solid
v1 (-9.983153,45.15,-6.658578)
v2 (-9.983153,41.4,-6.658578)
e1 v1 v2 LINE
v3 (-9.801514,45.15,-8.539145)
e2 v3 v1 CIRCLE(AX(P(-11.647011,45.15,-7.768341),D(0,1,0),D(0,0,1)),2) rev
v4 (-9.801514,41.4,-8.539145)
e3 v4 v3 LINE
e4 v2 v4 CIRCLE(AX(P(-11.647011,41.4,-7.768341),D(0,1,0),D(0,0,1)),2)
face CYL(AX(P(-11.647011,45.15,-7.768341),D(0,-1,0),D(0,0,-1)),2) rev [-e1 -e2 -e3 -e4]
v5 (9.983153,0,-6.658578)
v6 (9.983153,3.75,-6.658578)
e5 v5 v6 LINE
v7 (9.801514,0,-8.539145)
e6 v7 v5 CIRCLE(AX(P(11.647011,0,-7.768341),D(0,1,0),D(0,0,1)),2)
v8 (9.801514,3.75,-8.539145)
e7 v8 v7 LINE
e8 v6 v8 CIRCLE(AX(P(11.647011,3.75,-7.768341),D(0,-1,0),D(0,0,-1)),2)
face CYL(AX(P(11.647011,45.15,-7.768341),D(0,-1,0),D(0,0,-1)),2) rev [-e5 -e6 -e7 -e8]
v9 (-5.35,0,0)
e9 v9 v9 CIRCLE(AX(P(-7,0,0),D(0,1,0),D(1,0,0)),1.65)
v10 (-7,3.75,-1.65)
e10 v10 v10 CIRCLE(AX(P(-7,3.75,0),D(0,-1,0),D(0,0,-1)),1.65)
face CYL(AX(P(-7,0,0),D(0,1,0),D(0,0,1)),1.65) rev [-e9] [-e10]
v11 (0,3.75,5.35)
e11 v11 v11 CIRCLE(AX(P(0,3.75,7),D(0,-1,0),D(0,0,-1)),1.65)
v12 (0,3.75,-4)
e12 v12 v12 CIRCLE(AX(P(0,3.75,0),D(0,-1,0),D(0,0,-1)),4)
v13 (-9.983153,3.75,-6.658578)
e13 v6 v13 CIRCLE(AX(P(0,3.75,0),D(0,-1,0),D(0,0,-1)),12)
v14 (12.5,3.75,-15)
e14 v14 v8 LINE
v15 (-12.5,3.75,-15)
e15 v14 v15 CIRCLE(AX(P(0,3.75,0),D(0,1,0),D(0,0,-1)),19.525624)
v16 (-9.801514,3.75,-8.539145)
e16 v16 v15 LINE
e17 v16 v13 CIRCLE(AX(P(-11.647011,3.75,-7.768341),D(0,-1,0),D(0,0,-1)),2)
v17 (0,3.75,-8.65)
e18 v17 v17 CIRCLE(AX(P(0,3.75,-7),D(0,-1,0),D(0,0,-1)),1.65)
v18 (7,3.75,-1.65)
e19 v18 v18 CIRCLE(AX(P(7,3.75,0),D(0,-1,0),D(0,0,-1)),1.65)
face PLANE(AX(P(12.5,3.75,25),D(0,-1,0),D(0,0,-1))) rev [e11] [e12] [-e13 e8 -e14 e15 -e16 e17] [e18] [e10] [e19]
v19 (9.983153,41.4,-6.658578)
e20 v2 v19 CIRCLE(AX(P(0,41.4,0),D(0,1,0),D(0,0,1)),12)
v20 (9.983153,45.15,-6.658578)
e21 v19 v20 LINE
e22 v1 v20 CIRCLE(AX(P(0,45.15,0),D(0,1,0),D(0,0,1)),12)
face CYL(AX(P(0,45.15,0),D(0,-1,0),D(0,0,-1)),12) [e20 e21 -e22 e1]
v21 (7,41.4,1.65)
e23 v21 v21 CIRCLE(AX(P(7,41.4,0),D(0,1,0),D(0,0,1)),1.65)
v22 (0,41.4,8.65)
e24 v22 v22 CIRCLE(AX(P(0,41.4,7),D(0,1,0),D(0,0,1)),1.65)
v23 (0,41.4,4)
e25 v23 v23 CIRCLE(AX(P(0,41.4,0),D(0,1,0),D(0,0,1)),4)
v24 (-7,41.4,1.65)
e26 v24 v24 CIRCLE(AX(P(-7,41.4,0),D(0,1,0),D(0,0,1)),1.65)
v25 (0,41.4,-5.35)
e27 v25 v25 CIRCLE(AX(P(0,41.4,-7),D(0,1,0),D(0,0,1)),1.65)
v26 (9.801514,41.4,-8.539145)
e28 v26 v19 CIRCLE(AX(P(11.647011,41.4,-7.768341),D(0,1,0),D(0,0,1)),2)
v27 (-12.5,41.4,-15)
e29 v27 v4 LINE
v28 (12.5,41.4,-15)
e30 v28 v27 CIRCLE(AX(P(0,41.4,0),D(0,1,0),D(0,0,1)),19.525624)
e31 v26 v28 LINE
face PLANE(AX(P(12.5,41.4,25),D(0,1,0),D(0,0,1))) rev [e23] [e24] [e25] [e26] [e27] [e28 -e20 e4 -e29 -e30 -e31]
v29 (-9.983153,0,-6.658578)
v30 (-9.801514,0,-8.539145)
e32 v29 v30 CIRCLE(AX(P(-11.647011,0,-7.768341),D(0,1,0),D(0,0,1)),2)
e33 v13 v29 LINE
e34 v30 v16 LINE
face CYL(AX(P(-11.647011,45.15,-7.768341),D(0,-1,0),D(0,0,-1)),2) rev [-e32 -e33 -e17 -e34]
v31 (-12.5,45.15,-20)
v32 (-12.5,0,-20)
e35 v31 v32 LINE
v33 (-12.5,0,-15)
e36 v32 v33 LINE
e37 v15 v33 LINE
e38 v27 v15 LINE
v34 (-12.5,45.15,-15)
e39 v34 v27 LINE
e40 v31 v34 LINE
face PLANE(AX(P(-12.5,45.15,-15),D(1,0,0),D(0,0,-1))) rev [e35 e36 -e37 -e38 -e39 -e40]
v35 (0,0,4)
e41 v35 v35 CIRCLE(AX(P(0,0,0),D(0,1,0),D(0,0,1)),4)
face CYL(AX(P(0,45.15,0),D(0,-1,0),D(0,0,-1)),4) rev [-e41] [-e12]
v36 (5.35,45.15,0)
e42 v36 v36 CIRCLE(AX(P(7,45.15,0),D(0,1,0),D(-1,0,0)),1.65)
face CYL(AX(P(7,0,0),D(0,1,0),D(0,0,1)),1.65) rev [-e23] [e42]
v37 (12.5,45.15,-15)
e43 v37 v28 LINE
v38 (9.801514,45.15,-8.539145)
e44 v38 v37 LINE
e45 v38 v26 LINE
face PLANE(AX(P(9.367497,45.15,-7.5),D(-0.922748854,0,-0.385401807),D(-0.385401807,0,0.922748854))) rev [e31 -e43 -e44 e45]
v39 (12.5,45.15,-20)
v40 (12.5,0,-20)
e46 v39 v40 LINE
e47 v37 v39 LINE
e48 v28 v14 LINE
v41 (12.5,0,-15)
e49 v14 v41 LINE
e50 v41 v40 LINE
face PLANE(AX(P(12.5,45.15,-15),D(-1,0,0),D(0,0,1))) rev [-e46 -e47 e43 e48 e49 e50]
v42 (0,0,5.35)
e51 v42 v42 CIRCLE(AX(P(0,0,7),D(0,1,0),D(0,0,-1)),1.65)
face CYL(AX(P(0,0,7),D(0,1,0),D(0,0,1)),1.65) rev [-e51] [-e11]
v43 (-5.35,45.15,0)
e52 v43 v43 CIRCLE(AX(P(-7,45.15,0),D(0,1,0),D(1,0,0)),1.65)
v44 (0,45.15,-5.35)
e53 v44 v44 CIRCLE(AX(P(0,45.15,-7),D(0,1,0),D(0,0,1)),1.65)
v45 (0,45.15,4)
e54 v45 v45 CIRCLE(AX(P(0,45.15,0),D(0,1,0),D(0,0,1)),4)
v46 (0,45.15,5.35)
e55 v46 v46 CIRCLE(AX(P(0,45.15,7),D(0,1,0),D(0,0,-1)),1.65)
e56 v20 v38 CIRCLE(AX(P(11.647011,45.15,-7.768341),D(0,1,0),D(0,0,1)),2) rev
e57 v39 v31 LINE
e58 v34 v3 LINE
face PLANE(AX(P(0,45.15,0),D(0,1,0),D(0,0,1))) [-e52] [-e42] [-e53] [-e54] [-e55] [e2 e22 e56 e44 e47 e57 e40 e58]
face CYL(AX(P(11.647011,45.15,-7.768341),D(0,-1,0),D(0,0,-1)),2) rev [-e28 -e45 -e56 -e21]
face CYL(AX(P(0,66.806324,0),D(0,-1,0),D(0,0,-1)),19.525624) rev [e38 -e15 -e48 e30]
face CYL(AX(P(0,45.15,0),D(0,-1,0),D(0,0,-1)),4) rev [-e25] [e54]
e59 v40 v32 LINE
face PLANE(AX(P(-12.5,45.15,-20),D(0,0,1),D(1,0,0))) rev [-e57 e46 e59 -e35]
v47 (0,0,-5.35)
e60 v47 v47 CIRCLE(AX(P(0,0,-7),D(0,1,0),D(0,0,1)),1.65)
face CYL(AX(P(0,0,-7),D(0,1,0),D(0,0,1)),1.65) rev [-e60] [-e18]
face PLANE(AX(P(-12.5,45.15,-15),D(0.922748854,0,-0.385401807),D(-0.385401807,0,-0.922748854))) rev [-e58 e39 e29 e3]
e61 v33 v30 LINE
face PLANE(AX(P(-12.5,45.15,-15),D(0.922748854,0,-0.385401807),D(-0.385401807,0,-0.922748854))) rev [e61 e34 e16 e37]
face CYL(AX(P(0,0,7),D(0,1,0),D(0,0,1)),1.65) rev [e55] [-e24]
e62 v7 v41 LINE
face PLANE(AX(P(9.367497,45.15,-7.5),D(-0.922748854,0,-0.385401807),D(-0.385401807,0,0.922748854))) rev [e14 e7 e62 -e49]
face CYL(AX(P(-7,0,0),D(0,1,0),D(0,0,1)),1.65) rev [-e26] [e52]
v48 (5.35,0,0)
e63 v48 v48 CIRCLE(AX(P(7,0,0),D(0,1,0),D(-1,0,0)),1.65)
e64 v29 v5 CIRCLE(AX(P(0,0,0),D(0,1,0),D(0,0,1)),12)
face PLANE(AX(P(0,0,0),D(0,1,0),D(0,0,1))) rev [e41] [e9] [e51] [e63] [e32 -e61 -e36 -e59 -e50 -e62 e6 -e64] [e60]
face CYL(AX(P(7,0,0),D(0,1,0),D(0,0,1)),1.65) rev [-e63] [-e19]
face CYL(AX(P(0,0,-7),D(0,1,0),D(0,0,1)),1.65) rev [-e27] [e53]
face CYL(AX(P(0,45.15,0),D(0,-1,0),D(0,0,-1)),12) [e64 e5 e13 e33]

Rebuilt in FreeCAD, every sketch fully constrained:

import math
import FreeCAD as App
import Part
import Sketcher
from FreeCAD import Vector


def edges_at(feature, points):
    """Names of the edges that pass closest to the given points."""
    edges = feature.Shape.Edges
    near = lambda p: min(range(len(edges)), key=lambda i: edges[i].distToShape(Part.Vertex(*p))[0])
    return sorted({f"Edge{near(p) + 1}" for p in points})

doc = App.newDocument("Part")
body = doc.addObject("PartDesign::Body", "Body")

# Sketch on XZ plane
sketch1 = body.newObject("Sketcher::SketchObject", "Sketch")
sketch1.AttachmentSupport = (doc.getObject("XZ_Plane"), [""])
sketch1.MapMode = "FlatFace"
sketch1.addGeometry(Part.LineSegment(Vector(-12.5, -20, 0), Vector(-12.5, -15, 0)), False)
sketch1.addGeometry(Part.LineSegment(Vector(-12.5, -15, 0), Vector(-9.367497, -7.5, 0)), False)
sketch1.addGeometry(Part.ArcOfCircle(Part.Circle(Vector(0, 0, 0), Vector(0, 0, 1), 12), math.radians(-38.682187), math.radians(218.682187)), False)
sketch1.addGeometry(Part.LineSegment(Vector(9.367497, -7.5, 0), Vector(12.5, -15, 0)), False)
sketch1.addGeometry(Part.LineSegment(Vector(12.5, -15, 0), Vector(12.5, -20, 0)), False)
sketch1.addGeometry(Part.LineSegment(Vector(12.5, -20, 0), Vector(-12.5, -20, 0)), False)
sketch1.addGeometry(Part.Circle(Vector(0, 0, 0), Vector(0, 0, 1), 4), False)
sketch1.addConstraint(Sketcher.Constraint("Coincident", 0, 2, 1, 1))
sketch1.addConstraint(Sketcher.Constraint("Coincident", 1, 2, 2, 2))
sketch1.addConstraint(Sketcher.Constraint("Coincident", 2, 1, 3, 1))
sketch1.addConstraint(Sketcher.Constraint("Coincident", 3, 2, 4, 1))
sketch1.addConstraint(Sketcher.Constraint("Coincident", 4, 2, 5, 1))
sketch1.addConstraint(Sketcher.Constraint("Coincident", 5, 2, 0, 1))
sketch1.addConstraint(Sketcher.Constraint("Vertical", 0))
sketch1.addConstraint(Sketcher.Constraint("Vertical", 4))
sketch1.addConstraint(Sketcher.Constraint("Horizontal", 5))
sketch1.addConstraint(Sketcher.Constraint("Coincident", 2, 3, -1, 1))
sketch1.addConstraint(Sketcher.Constraint("Coincident", 6, 3, -1, 1))
sketch1.addConstraint(Sketcher.Constraint("Symmetric", 0, 2, 3, 2, -2))
sketch1.addConstraint(Sketcher.Constraint("Horizontal", 1, 2, 2, 1))
sketch1.addConstraint(Sketcher.Constraint("Diameter", 6, 8.0))
sketch1.addConstraint(Sketcher.Constraint("Radius", 2, 12.0))
sketch1.addConstraint(Sketcher.Constraint("DistanceX", 5, 2, 5, 1, 25.0))
sketch1.addConstraint(Sketcher.Constraint("DistanceY", 0, 1, 0, 2, 5.0))
sketch1.addConstraint(Sketcher.Constraint("DistanceY", 0, 2, -1, 1, 15.0))
sketch1.addConstraint(Sketcher.Constraint("DistanceY", 1, 2, -1, 1, 7.5))
pad1 = body.newObject("PartDesign::Pad", "Pad")
pad1.Profile = sketch1
pad1.Length = 45.15
pad1.Reversed = True

# Sketch on YZ plane
sketch2 = body.newObject("Sketcher::SketchObject", "Sketch001")
sketch2.AttachmentSupport = (doc.getObject("YZ_Plane"), [""])
sketch2.MapMode = "FlatFace"
sketch2.AttachmentOffset = App.Placement(Vector(0, 0, -12.5), App.Rotation())
sketch2.addGeometry(Part.LineSegment(Vector(41.4, -15, 0), Vector(3.75, -15, 0)), False)
sketch2.addGeometry(Part.LineSegment(Vector(3.75, -15, 0), Vector(3.75, 25, 0)), False)
sketch2.addGeometry(Part.LineSegment(Vector(3.75, 25, 0), Vector(41.4, 25, 0)), False)
sketch2.addGeometry(Part.LineSegment(Vector(41.4, 25, 0), Vector(41.4, -15, 0)), False)
sketch2.addConstraint(Sketcher.Constraint("Coincident", 0, 2, 1, 1))
sketch2.addConstraint(Sketcher.Constraint("Coincident", 1, 2, 2, 1))
sketch2.addConstraint(Sketcher.Constraint("Coincident", 2, 2, 3, 1))
sketch2.addConstraint(Sketcher.Constraint("Coincident", 3, 2, 0, 1))
sketch2.addConstraint(Sketcher.Constraint("Horizontal", 0))
sketch2.addConstraint(Sketcher.Constraint("Vertical", 1))
sketch2.addConstraint(Sketcher.Constraint("Horizontal", 2))
sketch2.addConstraint(Sketcher.Constraint("Vertical", 3))
sketch2.addConstraint(Sketcher.Constraint("DistanceY", 1, 1, 1, 2, 40.0))
sketch2.addConstraint(Sketcher.Constraint("DistanceY", 0, 2, -1, 1, 15.0))
sketch2.addConstraint(Sketcher.Constraint("DistanceX", 0, 2, 0, 1, 37.65))
sketch2.addConstraint(Sketcher.Constraint("DistanceX", -1, 1, 2, 2, 41.4))
pocket1 = body.newObject("PartDesign::Pocket", "Pocket")
pocket1.Profile = sketch2
pocket1.Type = "ThroughAll"
pocket1.Reversed = True

# Sketch on XZ plane
sketch3 = body.newObject("Sketcher::SketchObject", "Sketch002")
sketch3.AttachmentSupport = (doc.getObject("XZ_Plane"), [""])
sketch3.MapMode = "FlatFace"
sketch3.AttachmentOffset = App.Placement(Vector(0, 0, -45.15), App.Rotation())
sketch3.addGeometry(Part.Circle(Vector(0, -7, 0), Vector(0, 0, 1), 1.65), False)
sketch3.addConstraint(Sketcher.Constraint("PointOnObject", 0, 3, -2))
sketch3.addConstraint(Sketcher.Constraint("Diameter", 0, 3.3))
sketch3.addConstraint(Sketcher.Constraint("DistanceY", 0, 3, -1, 1, 7.0))
pocket2 = body.newObject("PartDesign::Pocket", "Pocket001")
pocket2.Profile = sketch3
pocket2.Type = "ThroughAll"
pocket2.Reversed = True
doc.recompute()

polarpattern = body.newObject("PartDesign::PolarPattern", "PolarPattern")
polarpattern.Originals = [pocket2]
polarpattern.Axis = (doc.getObject("Y_Axis"), [""])
polarpattern.Angle = 360
polarpattern.Occurrences = 4
body.Tip = polarpattern
doc.recompute()

fillet = body.newObject("PartDesign::Fillet", "Fillet")
fillet.Base = (polarpattern, edges_at(polarpattern, [
    (9.367, 43.275, -7.5),
    (-9.367, 43.275, -7.5),
    (9.367, 1.875, -7.5),
    (-9.367, 1.875, -7.5),
]))
fillet.Radius = 2

# Sketch on XZ plane
sketch4 = body.newObject("Sketcher::SketchObject", "Sketch003")
sketch4.AttachmentSupport = (doc.getObject("XZ_Plane"), [""])
sketch4.MapMode = "FlatFace"
sketch4.AttachmentOffset = App.Placement(Vector(0, 0, -3.75), App.Rotation())
sketch4.addGeometry(Part.LineSegment(Vector(-12.5, -15, 0), Vector(12.5, -15, 0)), False)
sketch4.addGeometry(Part.ArcOfCircle(Part.Circle(Vector(0, 0, 0), Vector(0, 0, 1), 19.525624), math.radians(-129.805571), math.radians(-50.194429)), False)
sketch4.addConstraint(Sketcher.Constraint("Coincident", 0, 1, 1, 1))
sketch4.addConstraint(Sketcher.Constraint("Coincident", 1, 2, 0, 2))
sketch4.addConstraint(Sketcher.Constraint("Horizontal", 0))
sketch4.addConstraint(Sketcher.Constraint("Coincident", 1, 3, -1, 1))
sketch4.addConstraint(Sketcher.Constraint("DistanceX", 0, 1, 0, 2, 25.0))
sketch4.addConstraint(Sketcher.Constraint("DistanceY", 0, 1, -1, 1, 15.0))
pocket3 = body.newObject("PartDesign::Pocket", "Pocket002")
pocket3.Profile = sketch4
pocket3.Length = 37.65

doc.recompute()
